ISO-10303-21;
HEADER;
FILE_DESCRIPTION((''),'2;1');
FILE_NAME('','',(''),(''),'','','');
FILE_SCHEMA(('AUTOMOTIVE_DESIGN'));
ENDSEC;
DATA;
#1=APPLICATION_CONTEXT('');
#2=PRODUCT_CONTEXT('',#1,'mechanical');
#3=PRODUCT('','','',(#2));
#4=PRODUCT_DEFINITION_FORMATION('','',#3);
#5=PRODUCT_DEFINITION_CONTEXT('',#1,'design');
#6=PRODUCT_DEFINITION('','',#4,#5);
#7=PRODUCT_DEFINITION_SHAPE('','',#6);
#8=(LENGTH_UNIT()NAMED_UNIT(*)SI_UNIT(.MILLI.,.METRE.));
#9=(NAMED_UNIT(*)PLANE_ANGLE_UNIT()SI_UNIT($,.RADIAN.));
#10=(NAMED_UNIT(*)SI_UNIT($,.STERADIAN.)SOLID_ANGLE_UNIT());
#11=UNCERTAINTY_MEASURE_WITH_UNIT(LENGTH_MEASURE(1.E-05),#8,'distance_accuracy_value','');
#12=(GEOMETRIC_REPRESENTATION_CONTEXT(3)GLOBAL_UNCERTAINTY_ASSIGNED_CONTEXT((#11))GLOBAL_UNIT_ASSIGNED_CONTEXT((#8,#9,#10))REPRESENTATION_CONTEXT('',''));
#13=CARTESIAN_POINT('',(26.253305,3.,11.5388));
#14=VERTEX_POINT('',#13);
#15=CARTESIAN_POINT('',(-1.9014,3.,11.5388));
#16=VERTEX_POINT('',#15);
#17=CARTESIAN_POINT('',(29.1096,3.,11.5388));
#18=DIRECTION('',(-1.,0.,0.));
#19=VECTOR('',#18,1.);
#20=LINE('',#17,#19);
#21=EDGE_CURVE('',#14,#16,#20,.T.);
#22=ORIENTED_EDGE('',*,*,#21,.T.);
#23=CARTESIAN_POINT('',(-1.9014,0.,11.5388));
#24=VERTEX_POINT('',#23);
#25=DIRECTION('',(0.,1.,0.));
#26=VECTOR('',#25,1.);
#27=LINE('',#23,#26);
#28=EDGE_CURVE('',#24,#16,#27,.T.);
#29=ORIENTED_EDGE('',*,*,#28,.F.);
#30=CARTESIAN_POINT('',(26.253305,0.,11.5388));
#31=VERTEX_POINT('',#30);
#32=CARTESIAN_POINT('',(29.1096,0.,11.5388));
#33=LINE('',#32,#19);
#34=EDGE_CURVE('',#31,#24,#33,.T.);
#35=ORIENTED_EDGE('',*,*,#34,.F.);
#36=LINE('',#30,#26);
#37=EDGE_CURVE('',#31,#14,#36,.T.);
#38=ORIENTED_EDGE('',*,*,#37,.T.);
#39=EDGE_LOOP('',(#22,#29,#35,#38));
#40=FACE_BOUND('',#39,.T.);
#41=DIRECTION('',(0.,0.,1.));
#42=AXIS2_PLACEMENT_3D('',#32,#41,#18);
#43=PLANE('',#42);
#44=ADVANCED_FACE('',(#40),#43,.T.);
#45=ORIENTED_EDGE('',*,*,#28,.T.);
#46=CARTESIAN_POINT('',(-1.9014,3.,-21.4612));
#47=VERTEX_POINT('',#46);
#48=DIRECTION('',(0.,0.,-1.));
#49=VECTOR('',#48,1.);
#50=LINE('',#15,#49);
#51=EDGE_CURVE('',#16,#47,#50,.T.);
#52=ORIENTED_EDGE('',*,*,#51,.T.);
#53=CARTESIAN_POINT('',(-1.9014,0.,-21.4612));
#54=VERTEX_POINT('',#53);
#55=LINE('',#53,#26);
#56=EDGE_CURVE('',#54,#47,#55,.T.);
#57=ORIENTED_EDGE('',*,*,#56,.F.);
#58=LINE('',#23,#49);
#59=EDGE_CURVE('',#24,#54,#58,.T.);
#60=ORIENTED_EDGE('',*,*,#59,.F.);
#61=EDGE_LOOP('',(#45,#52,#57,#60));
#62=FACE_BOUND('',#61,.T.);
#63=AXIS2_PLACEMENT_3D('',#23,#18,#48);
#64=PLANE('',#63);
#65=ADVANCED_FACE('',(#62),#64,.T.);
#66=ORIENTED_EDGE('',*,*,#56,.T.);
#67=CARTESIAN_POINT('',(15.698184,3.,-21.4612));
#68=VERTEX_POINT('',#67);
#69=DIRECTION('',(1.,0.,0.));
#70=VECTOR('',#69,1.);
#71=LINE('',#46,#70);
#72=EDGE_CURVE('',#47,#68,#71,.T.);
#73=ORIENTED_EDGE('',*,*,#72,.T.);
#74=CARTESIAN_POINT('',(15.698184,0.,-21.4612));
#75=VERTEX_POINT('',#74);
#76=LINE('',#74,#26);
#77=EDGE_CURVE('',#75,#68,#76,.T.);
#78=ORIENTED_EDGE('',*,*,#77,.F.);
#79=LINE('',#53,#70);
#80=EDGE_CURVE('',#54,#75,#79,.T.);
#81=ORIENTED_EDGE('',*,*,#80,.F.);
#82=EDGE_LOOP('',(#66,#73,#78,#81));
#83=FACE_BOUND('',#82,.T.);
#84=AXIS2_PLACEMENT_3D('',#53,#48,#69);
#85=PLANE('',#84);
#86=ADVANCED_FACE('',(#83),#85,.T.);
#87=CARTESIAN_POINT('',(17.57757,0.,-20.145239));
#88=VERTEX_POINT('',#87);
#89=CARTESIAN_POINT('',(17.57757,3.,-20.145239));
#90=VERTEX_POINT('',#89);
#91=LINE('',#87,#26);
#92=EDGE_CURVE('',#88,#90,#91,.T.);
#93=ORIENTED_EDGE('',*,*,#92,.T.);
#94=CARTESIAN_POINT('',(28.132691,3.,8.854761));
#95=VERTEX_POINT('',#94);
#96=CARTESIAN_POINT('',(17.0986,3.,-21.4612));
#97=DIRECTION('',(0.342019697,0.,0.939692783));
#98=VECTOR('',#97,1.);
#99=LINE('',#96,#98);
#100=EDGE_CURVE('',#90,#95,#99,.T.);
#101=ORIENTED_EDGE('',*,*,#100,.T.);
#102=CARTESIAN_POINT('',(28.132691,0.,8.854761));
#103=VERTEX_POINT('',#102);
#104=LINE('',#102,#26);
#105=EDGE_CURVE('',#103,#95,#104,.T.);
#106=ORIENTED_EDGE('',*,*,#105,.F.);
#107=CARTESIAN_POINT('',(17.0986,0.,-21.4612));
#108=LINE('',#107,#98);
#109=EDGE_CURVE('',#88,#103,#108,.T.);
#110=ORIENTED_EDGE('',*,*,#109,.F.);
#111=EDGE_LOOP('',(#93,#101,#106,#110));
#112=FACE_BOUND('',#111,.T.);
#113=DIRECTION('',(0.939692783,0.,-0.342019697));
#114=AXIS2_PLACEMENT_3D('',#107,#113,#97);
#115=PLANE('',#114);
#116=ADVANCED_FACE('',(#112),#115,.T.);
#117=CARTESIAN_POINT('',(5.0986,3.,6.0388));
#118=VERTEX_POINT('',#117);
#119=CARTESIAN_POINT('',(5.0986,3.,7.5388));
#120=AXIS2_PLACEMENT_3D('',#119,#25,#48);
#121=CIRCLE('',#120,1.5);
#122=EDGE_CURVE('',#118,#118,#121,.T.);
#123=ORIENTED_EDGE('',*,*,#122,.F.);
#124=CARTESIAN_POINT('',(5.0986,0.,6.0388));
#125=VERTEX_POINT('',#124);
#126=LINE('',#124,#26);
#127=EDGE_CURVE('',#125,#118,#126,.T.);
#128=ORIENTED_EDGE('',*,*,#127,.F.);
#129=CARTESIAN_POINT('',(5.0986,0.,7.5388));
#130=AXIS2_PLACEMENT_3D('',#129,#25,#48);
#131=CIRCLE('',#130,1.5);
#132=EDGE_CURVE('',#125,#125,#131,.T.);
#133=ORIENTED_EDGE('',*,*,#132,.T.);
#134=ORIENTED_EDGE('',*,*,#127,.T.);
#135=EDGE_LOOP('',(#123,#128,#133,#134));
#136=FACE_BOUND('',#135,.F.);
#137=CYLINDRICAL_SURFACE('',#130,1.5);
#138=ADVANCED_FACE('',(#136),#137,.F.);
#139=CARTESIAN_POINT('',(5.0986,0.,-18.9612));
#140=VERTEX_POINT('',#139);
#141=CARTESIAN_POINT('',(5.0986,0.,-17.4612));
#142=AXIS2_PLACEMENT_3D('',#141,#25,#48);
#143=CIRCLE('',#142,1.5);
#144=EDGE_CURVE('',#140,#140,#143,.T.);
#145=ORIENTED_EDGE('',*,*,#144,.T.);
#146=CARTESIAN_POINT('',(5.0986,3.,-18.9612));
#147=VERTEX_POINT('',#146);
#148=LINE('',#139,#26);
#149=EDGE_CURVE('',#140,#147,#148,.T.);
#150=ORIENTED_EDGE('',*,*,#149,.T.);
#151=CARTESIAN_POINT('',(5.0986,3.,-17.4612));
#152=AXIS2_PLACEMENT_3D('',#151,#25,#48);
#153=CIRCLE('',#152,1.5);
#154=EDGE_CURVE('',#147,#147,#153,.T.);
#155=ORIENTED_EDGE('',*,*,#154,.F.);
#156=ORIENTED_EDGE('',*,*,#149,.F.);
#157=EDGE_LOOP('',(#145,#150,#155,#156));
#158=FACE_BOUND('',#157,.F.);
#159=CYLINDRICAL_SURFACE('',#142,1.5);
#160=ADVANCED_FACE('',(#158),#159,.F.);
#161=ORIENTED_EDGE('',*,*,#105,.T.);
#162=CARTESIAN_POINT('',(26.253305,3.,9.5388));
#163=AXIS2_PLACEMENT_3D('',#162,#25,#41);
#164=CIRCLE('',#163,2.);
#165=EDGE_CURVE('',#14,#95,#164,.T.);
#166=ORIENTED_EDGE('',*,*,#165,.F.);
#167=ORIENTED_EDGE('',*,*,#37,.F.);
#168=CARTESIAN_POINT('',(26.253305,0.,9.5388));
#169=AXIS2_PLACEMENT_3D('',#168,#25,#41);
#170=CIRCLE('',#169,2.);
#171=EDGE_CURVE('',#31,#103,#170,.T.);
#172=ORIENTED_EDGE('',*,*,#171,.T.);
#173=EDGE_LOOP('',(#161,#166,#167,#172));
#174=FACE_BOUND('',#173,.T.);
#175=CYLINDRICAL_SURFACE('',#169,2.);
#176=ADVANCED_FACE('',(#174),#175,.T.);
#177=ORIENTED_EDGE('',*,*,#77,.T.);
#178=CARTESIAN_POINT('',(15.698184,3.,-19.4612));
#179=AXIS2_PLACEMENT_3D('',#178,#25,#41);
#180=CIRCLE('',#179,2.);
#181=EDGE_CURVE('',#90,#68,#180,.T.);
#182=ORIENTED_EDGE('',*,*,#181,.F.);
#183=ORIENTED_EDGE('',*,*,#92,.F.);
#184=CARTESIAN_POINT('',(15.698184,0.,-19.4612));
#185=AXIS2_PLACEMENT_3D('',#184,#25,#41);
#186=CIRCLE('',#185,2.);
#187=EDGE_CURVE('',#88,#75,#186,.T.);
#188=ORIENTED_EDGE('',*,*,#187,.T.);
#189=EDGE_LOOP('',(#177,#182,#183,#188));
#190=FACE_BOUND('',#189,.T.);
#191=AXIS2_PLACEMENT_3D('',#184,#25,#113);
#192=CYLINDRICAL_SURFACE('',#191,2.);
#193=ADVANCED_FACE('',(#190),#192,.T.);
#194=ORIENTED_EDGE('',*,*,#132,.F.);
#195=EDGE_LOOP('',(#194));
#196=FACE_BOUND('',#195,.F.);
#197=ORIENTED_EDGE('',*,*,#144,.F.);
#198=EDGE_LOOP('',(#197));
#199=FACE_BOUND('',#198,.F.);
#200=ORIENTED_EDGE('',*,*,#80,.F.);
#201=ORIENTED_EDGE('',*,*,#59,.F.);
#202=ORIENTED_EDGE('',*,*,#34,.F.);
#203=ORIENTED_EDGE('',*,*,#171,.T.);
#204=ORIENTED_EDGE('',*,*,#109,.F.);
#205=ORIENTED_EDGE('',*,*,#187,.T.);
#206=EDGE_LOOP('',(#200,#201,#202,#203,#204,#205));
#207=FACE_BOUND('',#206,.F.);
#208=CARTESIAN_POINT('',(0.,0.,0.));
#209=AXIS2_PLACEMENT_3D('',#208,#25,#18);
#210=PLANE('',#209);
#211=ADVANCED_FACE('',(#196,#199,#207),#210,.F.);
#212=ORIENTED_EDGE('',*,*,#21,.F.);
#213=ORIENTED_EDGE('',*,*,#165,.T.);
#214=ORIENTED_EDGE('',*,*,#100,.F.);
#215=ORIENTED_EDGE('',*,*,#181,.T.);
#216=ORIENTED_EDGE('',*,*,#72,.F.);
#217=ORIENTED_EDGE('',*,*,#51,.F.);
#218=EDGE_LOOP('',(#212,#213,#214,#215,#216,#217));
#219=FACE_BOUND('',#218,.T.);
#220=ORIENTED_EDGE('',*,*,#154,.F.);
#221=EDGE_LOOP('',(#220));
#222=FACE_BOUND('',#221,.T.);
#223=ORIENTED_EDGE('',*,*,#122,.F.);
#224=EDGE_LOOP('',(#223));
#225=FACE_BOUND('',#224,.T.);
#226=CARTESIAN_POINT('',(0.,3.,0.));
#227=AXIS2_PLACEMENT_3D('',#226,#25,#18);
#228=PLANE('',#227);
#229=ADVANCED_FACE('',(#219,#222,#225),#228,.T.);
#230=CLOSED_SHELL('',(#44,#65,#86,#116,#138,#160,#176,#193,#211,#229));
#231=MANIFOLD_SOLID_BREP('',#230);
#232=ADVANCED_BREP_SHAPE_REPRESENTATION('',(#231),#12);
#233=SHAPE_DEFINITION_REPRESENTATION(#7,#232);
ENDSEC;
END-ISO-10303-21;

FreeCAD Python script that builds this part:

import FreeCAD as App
import Part
import Sketcher

V = App.Vector
Q = App.Units.Quantity


def edges_at(feature, points):
    """Names of the edges that pass closest to the given points."""
    edges = feature.Shape.Edges
    near = lambda p: min(range(len(edges)), key=lambda i: edges[i].distToShape(Part.Vertex(*p))[0])
    return sorted({f"Edge{near(p) + 1}" for p in points})

doc = App.newDocument("Part")
body = doc.addObject("PartDesign::Body", "Body")

# Sketch on XZ plane
sketch1 = body.newObject("Sketcher::SketchObject", "Sketch")
sketch1.AttachmentSupport = (doc.getObject("XZ_Plane"), [""])
sketch1.MapMode = "FlatFace"
sketch1.addGeometry(Part.LineSegment(V(-2, -21, 0), V(-2, 12, 0)), False)
sketch1.addGeometry(Part.LineSegment(V(-2, 12, 0), V(29, 12, 0)), False)
sketch1.addGeometry(Part.LineSegment(V(29, 12, 0), V(17, -21, 0)), False)
sketch1.addGeometry(Part.LineSegment(V(17, -21, 0), V(-2, -21, 0)), False)
sketch1.addConstraint(Sketcher.Constraint("Coincident", 0, 2, 1, 1))
sketch1.addConstraint(Sketcher.Constraint("Coincident", 1, 2, 2, 1))
sketch1.addConstraint(Sketcher.Constraint("Coincident", 2, 2, 3, 1))
sketch1.addConstraint(Sketcher.Constraint("Coincident", 3, 2, 0, 1))
sketch1.addConstraint(Sketcher.Constraint("Vertical", 0))
sketch1.addConstraint(Sketcher.Constraint("Horizontal", 1))
sketch1.addConstraint(Sketcher.Constraint("Horizontal", 3))
sketch1.addConstraint(Sketcher.Constraint("DistanceX", 3, 2, 3, 1, Q("19 mm")))
sketch1.addConstraint(Sketcher.Constraint("DistanceY", 0, 1, 0, 2, Q("33 mm")))
sketch1.addConstraint(Sketcher.Constraint("Angle", 2, Q("-110 deg")))
sketch1.addConstraint(Sketcher.Constraint("DistanceX", 0, 2, -1, 1, Q("1.9014 mm")))
sketch1.addConstraint(Sketcher.Constraint("DistanceY", -1, 1, 0, 2, Q("11.5388 mm")))
pad1 = body.newObject("PartDesign::Pad", "Pad")
pad1.Profile = sketch1
pad1.Length = 3
pad1.Reversed = True

# Sketch on XZ plane
sketch2 = body.newObject("Sketcher::SketchObject", "Sketch001")
sketch2.AttachmentSupport = (doc.getObject("XZ_Plane"), [""])
sketch2.MapMode = "FlatFace"
sketch2.addGeometry(Part.Circle(V(5.1, 7.5, 0), V(0, 0, 1), 1.5), False)
sketch2.addGeometry(Part.Circle(V(5.1, -17.5, 0), V(0, 0, 1), 1.5), False)
sketch2.addConstraint(Sketcher.Constraint("Equal", 0, 1))
sketch2.addConstraint(Sketcher.Constraint("Vertical", 0, 3, 1, 3))
sketch2.addConstraint(Sketcher.Constraint("Diameter", 0, Q("3 mm")))
sketch2.addConstraint(Sketcher.Constraint("DistanceY", 1, 3, 0, 3, Q("25 mm")))
sketch2.addConstraint(Sketcher.Constraint("DistanceX", -1, 1, 0, 3, Q("5.0986 mm")))
sketch2.addConstraint(Sketcher.Constraint("DistanceY", -1, 1, 0, 3, Q("7.5388 mm")))
doc.recompute()
hole = body.newObject("PartDesign::Hole", "Hole")
hole.Profile = sketch2
hole.ThreadType = "None"
hole.Diameter = 3
hole.DepthType = "ThroughAll"
doc.recompute()

fillet = body.newObject("PartDesign::Fillet", "Fillet")
fillet.Base = (hole, edges_at(hole, [(29.11, 1.5, 11.539)]))
fillet.Radius = 2
doc.recompute()

fillet2 = body.newObject("PartDesign::Fillet", "Fillet001")
fillet2.Base = (fillet, edges_at(fillet, [(17.099, 1.5, -21.461)]))
fillet2.Radius = 2

doc.recompute()
